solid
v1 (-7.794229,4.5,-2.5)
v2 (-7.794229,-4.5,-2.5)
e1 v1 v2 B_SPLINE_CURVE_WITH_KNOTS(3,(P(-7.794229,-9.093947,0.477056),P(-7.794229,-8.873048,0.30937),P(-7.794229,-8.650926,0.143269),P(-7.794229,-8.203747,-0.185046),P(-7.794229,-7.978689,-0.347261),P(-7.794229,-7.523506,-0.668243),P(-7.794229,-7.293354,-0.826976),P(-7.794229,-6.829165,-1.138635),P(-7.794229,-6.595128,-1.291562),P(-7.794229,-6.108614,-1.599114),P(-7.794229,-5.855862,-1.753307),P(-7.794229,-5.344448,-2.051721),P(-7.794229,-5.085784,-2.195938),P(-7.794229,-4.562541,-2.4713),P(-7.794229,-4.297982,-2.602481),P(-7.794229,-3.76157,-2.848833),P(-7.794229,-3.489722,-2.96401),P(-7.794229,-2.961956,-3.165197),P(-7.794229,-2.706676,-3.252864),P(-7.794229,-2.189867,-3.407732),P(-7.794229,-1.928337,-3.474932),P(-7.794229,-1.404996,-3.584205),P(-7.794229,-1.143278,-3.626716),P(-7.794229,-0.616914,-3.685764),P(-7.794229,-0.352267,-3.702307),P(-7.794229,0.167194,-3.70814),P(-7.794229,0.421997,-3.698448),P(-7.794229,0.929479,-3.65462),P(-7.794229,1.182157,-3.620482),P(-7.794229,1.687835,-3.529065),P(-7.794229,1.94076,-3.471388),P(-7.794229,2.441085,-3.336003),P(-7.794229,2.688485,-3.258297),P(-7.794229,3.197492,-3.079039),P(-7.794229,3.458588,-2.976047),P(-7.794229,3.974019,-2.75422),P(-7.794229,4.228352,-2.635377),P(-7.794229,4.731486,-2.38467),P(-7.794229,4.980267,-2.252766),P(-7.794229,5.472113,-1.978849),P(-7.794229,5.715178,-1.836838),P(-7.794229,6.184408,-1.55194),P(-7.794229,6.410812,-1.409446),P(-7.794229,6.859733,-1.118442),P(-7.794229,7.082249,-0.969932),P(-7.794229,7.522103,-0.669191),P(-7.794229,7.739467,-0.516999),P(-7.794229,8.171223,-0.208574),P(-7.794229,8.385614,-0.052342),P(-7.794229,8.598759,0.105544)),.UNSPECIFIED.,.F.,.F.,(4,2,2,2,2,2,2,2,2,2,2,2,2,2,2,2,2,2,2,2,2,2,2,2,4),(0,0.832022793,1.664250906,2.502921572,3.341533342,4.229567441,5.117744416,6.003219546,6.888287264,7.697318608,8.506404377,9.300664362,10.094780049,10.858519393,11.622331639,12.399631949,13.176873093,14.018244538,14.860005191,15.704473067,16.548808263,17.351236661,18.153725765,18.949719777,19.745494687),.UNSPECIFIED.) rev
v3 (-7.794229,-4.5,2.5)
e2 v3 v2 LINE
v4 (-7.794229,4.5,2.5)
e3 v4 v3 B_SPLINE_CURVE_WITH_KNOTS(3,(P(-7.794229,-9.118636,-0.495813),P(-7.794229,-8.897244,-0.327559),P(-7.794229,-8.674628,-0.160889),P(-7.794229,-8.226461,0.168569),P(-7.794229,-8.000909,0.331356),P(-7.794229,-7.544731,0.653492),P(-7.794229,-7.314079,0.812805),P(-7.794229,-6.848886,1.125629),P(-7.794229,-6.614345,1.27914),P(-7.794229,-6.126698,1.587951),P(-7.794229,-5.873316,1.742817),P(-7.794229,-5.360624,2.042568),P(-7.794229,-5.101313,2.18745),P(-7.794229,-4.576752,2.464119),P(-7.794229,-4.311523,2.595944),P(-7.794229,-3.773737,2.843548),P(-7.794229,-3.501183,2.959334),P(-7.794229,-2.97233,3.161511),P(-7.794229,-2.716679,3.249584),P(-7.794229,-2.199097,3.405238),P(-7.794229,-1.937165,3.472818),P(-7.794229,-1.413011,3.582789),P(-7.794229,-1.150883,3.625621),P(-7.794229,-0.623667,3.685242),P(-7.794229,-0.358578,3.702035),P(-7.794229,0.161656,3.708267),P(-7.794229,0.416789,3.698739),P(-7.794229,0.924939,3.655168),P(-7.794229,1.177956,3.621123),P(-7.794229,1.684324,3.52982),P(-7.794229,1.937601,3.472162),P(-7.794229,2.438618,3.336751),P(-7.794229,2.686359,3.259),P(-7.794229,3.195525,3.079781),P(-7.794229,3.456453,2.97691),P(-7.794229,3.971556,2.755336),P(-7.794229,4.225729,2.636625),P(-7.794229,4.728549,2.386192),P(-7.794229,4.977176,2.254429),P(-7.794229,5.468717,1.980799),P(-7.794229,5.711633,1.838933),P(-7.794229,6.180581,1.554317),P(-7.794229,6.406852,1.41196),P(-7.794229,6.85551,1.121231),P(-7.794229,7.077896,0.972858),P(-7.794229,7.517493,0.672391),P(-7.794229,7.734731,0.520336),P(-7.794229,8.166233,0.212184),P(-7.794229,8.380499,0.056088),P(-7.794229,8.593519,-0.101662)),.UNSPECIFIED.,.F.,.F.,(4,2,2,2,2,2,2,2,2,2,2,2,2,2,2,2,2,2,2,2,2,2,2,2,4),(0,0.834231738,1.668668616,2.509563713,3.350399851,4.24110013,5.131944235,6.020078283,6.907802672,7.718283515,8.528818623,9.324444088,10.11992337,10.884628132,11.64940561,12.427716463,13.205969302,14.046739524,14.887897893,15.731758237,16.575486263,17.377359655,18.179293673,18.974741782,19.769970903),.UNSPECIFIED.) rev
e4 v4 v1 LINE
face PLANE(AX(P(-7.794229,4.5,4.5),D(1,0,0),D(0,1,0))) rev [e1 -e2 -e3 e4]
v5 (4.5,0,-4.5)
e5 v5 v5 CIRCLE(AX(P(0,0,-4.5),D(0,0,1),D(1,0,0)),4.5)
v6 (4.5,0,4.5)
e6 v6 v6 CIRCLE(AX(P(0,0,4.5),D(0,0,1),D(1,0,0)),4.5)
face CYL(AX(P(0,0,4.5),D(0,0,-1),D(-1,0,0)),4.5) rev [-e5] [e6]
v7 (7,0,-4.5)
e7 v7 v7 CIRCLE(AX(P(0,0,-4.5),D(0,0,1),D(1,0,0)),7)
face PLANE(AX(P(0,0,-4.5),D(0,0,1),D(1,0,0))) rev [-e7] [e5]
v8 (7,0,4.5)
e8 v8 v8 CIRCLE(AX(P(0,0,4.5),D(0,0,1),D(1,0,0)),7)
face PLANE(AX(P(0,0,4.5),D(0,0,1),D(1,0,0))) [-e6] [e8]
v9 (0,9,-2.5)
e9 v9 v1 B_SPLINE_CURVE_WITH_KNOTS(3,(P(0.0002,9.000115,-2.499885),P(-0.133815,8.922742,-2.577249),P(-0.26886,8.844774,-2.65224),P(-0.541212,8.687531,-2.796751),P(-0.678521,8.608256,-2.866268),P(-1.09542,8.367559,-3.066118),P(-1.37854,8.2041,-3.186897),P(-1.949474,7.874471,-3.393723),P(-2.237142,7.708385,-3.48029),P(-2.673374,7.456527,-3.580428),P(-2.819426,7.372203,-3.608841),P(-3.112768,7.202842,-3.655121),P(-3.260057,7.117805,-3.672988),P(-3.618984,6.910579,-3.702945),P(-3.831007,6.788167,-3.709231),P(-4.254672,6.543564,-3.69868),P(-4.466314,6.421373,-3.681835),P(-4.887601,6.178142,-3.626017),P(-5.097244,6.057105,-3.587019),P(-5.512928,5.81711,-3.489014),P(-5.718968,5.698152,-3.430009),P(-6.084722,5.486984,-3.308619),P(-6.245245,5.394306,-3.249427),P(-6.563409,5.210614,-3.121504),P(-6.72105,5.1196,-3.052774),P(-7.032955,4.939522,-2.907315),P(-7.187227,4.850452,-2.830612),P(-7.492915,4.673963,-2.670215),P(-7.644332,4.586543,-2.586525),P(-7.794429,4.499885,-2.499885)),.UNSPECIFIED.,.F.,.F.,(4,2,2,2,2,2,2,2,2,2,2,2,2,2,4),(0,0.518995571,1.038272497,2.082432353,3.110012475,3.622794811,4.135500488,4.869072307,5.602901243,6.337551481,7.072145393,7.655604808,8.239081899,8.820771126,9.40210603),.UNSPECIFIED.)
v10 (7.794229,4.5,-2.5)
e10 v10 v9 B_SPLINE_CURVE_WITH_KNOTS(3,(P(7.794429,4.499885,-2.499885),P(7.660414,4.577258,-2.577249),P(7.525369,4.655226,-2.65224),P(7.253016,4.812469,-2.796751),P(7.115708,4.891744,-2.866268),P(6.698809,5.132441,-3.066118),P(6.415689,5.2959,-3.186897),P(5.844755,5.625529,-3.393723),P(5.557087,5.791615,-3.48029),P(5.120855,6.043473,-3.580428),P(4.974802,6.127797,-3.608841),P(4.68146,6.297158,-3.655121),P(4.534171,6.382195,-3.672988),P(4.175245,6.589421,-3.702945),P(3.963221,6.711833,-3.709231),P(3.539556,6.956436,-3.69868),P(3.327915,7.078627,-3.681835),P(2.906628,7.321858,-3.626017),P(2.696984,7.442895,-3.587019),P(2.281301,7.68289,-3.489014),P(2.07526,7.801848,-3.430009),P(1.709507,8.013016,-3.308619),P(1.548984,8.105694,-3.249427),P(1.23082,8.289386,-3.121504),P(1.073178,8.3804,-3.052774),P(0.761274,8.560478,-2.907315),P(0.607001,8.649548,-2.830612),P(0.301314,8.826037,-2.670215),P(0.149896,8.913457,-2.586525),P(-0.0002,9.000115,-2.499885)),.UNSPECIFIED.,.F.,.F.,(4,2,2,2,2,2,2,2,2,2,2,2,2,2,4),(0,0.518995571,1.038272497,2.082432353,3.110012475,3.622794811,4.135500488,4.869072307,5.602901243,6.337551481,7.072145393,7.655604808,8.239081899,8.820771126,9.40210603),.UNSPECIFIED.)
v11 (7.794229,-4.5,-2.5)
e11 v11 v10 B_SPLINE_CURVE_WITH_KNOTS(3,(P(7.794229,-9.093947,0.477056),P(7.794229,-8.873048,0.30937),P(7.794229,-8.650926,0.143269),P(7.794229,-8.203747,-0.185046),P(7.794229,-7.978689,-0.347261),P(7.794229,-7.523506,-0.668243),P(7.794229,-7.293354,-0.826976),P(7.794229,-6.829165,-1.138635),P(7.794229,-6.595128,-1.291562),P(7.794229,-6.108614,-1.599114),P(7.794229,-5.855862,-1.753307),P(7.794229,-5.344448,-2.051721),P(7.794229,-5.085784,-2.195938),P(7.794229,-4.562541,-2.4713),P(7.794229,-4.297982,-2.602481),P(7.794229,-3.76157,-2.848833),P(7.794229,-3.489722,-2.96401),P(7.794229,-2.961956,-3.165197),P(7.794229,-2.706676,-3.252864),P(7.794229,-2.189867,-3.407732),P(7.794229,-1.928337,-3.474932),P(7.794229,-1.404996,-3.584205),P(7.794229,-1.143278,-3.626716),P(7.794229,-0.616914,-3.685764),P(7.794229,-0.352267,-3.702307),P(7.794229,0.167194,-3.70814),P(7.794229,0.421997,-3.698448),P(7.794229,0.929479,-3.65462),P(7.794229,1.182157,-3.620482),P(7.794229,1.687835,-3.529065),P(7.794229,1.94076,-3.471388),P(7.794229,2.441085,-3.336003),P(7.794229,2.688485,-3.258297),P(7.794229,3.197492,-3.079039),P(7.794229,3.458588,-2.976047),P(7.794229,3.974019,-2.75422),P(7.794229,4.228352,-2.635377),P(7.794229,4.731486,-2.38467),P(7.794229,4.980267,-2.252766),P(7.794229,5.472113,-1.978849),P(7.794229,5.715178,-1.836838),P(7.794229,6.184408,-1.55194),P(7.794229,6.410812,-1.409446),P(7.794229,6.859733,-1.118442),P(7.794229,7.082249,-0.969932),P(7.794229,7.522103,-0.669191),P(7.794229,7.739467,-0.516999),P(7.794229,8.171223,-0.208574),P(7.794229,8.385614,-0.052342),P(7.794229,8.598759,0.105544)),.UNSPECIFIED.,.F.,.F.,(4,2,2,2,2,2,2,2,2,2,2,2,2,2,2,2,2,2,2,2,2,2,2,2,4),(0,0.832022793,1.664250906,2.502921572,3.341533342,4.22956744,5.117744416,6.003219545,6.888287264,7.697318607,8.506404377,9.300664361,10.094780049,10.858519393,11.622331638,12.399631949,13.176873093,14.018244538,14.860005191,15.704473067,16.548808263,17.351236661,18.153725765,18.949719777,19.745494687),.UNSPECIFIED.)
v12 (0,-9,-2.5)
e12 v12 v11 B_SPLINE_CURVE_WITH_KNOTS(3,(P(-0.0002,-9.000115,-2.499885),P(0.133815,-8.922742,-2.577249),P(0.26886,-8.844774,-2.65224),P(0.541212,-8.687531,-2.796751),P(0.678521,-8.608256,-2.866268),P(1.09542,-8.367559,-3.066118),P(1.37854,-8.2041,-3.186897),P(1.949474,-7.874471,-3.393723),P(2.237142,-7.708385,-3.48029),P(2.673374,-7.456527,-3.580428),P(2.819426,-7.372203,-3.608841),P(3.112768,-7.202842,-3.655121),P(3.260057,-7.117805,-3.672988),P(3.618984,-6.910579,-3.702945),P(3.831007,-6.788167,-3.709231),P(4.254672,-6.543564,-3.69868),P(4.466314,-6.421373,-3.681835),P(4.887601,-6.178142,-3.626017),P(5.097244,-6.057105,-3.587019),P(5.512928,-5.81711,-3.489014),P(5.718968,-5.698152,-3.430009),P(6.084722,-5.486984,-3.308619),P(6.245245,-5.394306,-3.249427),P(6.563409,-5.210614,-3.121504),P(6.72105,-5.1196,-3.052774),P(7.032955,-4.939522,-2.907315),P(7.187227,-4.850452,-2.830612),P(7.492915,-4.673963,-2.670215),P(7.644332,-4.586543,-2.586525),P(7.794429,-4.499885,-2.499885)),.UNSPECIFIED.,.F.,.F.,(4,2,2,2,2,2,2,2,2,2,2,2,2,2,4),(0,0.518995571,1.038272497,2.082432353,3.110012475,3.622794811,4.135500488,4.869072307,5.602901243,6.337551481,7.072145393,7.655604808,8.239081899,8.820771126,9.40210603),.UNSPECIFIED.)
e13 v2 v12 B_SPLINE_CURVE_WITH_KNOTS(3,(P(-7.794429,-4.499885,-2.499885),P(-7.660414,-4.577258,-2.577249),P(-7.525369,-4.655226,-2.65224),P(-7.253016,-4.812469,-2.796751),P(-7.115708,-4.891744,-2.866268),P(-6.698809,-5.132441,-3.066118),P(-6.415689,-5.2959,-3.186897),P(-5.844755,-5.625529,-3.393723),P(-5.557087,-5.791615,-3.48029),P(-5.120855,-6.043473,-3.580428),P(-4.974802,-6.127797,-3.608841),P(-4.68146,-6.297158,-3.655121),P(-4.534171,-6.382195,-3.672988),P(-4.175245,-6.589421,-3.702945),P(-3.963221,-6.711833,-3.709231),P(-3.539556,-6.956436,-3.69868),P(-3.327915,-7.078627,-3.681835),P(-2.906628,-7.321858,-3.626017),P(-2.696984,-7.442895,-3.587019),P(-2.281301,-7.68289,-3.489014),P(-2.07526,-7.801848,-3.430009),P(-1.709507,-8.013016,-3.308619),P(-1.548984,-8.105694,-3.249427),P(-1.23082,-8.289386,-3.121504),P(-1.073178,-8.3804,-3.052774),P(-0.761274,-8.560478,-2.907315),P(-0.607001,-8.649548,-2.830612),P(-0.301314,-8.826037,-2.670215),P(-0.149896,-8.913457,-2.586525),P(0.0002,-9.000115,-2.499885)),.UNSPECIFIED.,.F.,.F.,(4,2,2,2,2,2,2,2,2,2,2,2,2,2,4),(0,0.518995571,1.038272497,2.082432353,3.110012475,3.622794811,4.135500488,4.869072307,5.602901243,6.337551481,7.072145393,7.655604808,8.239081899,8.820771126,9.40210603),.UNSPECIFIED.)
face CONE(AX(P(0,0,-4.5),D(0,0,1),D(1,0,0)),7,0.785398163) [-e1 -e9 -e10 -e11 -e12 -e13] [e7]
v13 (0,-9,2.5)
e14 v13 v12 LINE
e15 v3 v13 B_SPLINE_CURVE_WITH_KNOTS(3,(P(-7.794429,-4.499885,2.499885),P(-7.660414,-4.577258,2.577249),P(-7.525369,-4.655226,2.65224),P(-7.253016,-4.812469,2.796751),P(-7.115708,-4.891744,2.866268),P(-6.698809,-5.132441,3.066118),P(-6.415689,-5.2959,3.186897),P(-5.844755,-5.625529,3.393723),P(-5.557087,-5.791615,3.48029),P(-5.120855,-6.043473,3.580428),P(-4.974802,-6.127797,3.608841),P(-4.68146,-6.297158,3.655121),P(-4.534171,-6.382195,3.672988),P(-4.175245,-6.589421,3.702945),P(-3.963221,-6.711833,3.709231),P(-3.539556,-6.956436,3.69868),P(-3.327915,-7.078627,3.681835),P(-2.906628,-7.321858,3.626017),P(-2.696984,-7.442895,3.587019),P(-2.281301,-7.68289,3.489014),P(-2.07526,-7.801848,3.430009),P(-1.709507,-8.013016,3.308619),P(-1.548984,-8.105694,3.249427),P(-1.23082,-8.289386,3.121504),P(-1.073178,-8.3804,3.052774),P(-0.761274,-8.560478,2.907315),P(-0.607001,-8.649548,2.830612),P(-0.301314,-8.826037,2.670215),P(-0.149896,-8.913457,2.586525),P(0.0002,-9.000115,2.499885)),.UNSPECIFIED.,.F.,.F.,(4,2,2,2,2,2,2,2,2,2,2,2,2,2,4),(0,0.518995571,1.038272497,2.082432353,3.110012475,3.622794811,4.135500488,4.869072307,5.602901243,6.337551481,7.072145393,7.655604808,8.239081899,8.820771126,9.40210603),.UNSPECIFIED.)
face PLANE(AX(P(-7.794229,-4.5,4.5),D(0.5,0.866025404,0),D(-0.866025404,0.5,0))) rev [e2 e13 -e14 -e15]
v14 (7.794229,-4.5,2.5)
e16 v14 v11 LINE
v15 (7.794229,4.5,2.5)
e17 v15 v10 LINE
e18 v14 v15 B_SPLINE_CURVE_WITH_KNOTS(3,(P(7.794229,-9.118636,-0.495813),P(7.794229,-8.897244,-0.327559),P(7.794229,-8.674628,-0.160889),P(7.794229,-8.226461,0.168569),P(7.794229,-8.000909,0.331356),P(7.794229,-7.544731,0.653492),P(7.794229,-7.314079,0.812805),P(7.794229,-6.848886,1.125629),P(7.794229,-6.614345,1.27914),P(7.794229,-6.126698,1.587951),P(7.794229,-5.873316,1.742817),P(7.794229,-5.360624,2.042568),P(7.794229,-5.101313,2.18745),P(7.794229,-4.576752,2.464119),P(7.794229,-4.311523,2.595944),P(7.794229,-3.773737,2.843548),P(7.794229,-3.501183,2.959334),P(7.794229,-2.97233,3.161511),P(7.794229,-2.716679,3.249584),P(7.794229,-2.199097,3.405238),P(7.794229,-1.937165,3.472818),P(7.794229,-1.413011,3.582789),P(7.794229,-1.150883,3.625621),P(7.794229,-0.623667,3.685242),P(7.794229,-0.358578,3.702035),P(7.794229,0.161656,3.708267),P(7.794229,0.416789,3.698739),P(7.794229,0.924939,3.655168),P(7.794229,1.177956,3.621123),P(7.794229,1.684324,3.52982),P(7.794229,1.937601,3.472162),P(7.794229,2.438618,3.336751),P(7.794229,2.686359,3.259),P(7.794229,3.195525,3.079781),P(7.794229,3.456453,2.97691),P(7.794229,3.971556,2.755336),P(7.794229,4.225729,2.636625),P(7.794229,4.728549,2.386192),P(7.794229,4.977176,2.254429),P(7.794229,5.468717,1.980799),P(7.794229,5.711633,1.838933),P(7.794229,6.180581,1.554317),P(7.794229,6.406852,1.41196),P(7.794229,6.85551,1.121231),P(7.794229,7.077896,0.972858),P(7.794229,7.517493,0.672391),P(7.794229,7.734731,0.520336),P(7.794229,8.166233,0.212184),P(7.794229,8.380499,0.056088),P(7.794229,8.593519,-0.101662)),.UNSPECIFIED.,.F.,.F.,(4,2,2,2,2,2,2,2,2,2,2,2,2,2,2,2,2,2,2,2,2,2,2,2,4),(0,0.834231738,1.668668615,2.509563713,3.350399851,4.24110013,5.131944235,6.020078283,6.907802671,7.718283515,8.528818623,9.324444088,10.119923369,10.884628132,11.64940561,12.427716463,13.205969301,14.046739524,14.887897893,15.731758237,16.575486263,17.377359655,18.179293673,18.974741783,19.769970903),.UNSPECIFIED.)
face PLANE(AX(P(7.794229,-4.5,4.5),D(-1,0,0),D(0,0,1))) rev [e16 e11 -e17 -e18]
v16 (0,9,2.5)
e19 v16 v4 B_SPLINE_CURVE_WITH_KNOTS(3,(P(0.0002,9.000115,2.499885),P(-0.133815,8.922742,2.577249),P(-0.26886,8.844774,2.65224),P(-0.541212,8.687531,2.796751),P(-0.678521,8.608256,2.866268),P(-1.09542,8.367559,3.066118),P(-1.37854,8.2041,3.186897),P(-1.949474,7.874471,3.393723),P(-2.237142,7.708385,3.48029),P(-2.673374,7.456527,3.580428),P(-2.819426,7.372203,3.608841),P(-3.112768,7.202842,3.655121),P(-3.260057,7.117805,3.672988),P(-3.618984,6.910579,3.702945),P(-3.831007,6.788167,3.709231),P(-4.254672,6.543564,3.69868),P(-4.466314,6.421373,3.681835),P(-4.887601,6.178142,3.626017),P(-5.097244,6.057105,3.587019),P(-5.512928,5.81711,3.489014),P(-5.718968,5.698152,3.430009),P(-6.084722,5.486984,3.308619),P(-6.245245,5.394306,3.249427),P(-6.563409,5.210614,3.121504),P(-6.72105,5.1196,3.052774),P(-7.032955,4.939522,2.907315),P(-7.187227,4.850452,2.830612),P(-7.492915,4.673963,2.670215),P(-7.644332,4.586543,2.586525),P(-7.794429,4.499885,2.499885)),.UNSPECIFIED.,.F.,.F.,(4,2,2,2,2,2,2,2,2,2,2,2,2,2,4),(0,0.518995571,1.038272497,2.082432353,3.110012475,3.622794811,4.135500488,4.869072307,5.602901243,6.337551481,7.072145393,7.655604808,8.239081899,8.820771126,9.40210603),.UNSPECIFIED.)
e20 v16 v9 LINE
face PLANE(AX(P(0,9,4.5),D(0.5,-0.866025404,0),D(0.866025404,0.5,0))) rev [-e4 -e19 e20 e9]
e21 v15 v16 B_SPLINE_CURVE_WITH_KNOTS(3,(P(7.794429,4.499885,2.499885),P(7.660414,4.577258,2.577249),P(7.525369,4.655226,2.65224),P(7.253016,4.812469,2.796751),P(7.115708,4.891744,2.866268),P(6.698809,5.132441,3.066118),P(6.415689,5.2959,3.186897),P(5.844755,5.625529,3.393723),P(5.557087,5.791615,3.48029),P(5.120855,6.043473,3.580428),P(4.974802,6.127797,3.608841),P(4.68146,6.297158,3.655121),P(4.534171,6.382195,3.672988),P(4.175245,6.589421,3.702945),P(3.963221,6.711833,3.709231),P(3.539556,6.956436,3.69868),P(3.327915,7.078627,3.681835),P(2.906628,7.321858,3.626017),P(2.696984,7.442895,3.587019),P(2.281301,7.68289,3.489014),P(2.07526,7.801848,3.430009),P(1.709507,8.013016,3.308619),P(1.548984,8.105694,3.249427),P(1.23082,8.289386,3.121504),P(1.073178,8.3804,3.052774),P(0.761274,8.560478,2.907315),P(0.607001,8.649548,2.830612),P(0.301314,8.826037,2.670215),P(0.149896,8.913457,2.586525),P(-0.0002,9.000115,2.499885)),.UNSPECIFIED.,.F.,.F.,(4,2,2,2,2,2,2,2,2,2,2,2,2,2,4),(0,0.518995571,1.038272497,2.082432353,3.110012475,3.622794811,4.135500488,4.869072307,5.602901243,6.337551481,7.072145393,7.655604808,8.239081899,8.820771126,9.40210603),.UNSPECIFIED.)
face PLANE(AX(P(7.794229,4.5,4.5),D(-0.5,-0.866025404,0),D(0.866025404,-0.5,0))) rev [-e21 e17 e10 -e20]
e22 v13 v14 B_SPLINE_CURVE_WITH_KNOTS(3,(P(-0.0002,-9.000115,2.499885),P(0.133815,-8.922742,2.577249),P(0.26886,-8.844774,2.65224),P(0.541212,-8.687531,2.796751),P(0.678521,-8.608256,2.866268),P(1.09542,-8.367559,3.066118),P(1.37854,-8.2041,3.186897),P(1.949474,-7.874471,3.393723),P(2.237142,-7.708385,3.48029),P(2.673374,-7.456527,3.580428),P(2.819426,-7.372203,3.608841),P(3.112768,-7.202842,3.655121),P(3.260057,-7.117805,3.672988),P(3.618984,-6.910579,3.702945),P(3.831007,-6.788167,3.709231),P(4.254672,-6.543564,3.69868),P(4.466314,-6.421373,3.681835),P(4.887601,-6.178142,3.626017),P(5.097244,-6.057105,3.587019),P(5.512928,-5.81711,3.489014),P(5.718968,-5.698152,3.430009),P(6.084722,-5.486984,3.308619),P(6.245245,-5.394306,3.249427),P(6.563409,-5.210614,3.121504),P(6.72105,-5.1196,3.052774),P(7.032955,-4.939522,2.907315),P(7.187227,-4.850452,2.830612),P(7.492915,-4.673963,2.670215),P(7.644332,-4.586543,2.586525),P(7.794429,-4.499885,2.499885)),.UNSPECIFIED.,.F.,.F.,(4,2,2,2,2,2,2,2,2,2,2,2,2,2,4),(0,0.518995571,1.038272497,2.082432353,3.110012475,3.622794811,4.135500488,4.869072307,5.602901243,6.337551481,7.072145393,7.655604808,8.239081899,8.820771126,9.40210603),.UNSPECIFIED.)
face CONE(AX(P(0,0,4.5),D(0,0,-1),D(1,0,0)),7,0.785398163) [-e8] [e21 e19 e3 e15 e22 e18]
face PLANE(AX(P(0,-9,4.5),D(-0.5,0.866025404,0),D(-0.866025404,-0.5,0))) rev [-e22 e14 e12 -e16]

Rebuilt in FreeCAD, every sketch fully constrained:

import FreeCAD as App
import Part
import Sketcher
from FreeCAD import Vector
Q = App.Units.Quantity

doc = App.newDocument("Part")
body = doc.addObject("PartDesign::Body", "Body")

# Sketch on XY plane
sketch1 = body.newObject("Sketcher::SketchObject", "Sketch")
sketch1.AttachmentSupport = (doc.getObject("XY_Plane"), [""])
sketch1.MapMode = "FlatFace"
sketch1.addGeometry(Part.LineSegment(Vector(7.794229, -4.5, 0), Vector(7.794229, 4.5, 0)), False)
sketch1.addGeometry(Part.LineSegment(Vector(7.794229, 4.5, 0), Vector(0, 9, 0)), False)
sketch1.addGeometry(Part.LineSegment(Vector(0, 9, 0), Vector(-7.794229, 4.5, 0)), False)
sketch1.addGeometry(Part.LineSegment(Vector(-7.794229, 4.5, 0), Vector(-7.794229, -4.5, 0)), False)
sketch1.addGeometry(Part.LineSegment(Vector(-7.794229, -4.5, 0), Vector(0, -9, 0)), False)
sketch1.addGeometry(Part.LineSegment(Vector(0, -9, 0), Vector(7.794229, -4.5, 0)), False)
sketch1.addGeometry(Part.Circle(Vector(0, 0, 0), Vector(0, 0, 1), 4.5), False)
sketch1.addConstraint(Sketcher.Constraint("Coincident", 0, 2, 1, 1))
sketch1.addConstraint(Sketcher.Constraint("Coincident", 1, 2, 2, 1))
sketch1.addConstraint(Sketcher.Constraint("Coincident", 2, 2, 3, 1))
sketch1.addConstraint(Sketcher.Constraint("Coincident", 3, 2, 4, 1))
sketch1.addConstraint(Sketcher.Constraint("Coincident", 4, 2, 5, 1))
sketch1.addConstraint(Sketcher.Constraint("Coincident", 5, 2, 0, 1))
sketch1.addConstraint(Sketcher.Constraint("Vertical", 0))
sketch1.addConstraint(Sketcher.Constraint("Vertical", 3))
sketch1.addConstraint(Sketcher.Constraint("Coincident", 6, 3, -1, 1))
sketch1.addConstraint(Sketcher.Constraint("Symmetric", 0, 2, 3, 2, -1, 1))
sketch1.addConstraint(Sketcher.Constraint("Symmetric", 1, 2, 4, 2, -1, 1))
sketch1.addConstraint(Sketcher.Constraint("PointOnObject", 1, 2, -2))
sketch1.addConstraint(Sketcher.Constraint("Parallel", 2, 5))
sketch1.addConstraint(Sketcher.Constraint("Horizontal", 0, 2, 2, 2))
sketch1.addConstraint(Sketcher.Constraint("Diameter", 6, 9.0))
sketch1.addConstraint(Sketcher.Constraint("DistanceY", 0, 1, 0, 2, 9.0))
sketch1.addConstraint(Sketcher.Constraint("Angle", 1, Q("150 deg")))
sketch1.addConstraint(Sketcher.Constraint("Distance", 1, 9.0))
pad1 = body.newObject("PartDesign::Pad", "Pad")
pad1.Profile = sketch1
pad1.Length = 9
pad1.Midplane = True

# Sketch on XY plane
sketch2 = body.newObject("Sketcher::SketchObject", "Sketch001")
sketch2.AttachmentSupport = (doc.getObject("XY_Plane"), [""])
sketch2.MapMode = "FlatFace"
sketch2.AttachmentOffset = App.Placement(Vector(0, 0, 4.5), App.Rotation())
sketch2.addGeometry(Part.LineSegment(Vector(-20.34, 21.546, 0), Vector(-20.34, -21.546, 0)), False)
sketch2.addGeometry(Part.LineSegment(Vector(-20.34, -21.546, 0), Vector(20.34, -21.546, 0)), False)
sketch2.addGeometry(Part.LineSegment(Vector(20.34, -21.546, 0), Vector(20.34, 21.546, 0)), False)
sketch2.addGeometry(Part.LineSegment(Vector(20.34, 21.546, 0), Vector(-20.34, 21.546, 0)), False)
sketch2.addGeometry(Part.Circle(Vector(0, 0, 0), Vector(0, 0, 1), 7), False)
sketch2.addConstraint(Sketcher.Constraint("Coincident", 0, 2, 1, 1))
sketch2.addConstraint(Sketcher.Constraint("Coincident", 1, 2, 2, 1))
sketch2.addConstraint(Sketcher.Constraint("Coincident", 2, 2, 3, 1))
sketch2.addConstraint(Sketcher.Constraint("Coincident", 3, 2, 0, 1))
sketch2.addConstraint(Sketcher.Constraint("Vertical", 0))
sketch2.addConstraint(Sketcher.Constraint("Horizontal", 1))
sketch2.addConstraint(Sketcher.Constraint("Vertical", 2))
sketch2.addConstraint(Sketcher.Constraint("Horizontal", 3))
sketch2.addConstraint(Sketcher.Constraint("Coincident", 4, 3, -1, 1))
sketch2.addConstraint(Sketcher.Constraint("Symmetric", 0, 2, 2, 2, -1, 1))
sketch2.addConstraint(Sketcher.Constraint("Diameter", 4, 14.0))
sketch2.addConstraint(Sketcher.Constraint("DistanceX", 1, 1, 1, 2, 40.68))
sketch2.addConstraint(Sketcher.Constraint("DistanceY", 0, 2, 0, 1, 43.092))
pocket1 = body.newObject("PartDesign::Pocket", "Pocket")
pocket1.Profile = sketch2
pocket1.Length = 9
pocket1.TaperAngle = 45
doc.recompute()

mirrored = body.newObject("PartDesign::Mirrored", "Mirrored")
mirrored.Originals = [pocket1]
mirrored.MirrorPlane = (doc.getObject("XY_Plane"), [""])
body.Tip = mirrored

doc.recompute()
